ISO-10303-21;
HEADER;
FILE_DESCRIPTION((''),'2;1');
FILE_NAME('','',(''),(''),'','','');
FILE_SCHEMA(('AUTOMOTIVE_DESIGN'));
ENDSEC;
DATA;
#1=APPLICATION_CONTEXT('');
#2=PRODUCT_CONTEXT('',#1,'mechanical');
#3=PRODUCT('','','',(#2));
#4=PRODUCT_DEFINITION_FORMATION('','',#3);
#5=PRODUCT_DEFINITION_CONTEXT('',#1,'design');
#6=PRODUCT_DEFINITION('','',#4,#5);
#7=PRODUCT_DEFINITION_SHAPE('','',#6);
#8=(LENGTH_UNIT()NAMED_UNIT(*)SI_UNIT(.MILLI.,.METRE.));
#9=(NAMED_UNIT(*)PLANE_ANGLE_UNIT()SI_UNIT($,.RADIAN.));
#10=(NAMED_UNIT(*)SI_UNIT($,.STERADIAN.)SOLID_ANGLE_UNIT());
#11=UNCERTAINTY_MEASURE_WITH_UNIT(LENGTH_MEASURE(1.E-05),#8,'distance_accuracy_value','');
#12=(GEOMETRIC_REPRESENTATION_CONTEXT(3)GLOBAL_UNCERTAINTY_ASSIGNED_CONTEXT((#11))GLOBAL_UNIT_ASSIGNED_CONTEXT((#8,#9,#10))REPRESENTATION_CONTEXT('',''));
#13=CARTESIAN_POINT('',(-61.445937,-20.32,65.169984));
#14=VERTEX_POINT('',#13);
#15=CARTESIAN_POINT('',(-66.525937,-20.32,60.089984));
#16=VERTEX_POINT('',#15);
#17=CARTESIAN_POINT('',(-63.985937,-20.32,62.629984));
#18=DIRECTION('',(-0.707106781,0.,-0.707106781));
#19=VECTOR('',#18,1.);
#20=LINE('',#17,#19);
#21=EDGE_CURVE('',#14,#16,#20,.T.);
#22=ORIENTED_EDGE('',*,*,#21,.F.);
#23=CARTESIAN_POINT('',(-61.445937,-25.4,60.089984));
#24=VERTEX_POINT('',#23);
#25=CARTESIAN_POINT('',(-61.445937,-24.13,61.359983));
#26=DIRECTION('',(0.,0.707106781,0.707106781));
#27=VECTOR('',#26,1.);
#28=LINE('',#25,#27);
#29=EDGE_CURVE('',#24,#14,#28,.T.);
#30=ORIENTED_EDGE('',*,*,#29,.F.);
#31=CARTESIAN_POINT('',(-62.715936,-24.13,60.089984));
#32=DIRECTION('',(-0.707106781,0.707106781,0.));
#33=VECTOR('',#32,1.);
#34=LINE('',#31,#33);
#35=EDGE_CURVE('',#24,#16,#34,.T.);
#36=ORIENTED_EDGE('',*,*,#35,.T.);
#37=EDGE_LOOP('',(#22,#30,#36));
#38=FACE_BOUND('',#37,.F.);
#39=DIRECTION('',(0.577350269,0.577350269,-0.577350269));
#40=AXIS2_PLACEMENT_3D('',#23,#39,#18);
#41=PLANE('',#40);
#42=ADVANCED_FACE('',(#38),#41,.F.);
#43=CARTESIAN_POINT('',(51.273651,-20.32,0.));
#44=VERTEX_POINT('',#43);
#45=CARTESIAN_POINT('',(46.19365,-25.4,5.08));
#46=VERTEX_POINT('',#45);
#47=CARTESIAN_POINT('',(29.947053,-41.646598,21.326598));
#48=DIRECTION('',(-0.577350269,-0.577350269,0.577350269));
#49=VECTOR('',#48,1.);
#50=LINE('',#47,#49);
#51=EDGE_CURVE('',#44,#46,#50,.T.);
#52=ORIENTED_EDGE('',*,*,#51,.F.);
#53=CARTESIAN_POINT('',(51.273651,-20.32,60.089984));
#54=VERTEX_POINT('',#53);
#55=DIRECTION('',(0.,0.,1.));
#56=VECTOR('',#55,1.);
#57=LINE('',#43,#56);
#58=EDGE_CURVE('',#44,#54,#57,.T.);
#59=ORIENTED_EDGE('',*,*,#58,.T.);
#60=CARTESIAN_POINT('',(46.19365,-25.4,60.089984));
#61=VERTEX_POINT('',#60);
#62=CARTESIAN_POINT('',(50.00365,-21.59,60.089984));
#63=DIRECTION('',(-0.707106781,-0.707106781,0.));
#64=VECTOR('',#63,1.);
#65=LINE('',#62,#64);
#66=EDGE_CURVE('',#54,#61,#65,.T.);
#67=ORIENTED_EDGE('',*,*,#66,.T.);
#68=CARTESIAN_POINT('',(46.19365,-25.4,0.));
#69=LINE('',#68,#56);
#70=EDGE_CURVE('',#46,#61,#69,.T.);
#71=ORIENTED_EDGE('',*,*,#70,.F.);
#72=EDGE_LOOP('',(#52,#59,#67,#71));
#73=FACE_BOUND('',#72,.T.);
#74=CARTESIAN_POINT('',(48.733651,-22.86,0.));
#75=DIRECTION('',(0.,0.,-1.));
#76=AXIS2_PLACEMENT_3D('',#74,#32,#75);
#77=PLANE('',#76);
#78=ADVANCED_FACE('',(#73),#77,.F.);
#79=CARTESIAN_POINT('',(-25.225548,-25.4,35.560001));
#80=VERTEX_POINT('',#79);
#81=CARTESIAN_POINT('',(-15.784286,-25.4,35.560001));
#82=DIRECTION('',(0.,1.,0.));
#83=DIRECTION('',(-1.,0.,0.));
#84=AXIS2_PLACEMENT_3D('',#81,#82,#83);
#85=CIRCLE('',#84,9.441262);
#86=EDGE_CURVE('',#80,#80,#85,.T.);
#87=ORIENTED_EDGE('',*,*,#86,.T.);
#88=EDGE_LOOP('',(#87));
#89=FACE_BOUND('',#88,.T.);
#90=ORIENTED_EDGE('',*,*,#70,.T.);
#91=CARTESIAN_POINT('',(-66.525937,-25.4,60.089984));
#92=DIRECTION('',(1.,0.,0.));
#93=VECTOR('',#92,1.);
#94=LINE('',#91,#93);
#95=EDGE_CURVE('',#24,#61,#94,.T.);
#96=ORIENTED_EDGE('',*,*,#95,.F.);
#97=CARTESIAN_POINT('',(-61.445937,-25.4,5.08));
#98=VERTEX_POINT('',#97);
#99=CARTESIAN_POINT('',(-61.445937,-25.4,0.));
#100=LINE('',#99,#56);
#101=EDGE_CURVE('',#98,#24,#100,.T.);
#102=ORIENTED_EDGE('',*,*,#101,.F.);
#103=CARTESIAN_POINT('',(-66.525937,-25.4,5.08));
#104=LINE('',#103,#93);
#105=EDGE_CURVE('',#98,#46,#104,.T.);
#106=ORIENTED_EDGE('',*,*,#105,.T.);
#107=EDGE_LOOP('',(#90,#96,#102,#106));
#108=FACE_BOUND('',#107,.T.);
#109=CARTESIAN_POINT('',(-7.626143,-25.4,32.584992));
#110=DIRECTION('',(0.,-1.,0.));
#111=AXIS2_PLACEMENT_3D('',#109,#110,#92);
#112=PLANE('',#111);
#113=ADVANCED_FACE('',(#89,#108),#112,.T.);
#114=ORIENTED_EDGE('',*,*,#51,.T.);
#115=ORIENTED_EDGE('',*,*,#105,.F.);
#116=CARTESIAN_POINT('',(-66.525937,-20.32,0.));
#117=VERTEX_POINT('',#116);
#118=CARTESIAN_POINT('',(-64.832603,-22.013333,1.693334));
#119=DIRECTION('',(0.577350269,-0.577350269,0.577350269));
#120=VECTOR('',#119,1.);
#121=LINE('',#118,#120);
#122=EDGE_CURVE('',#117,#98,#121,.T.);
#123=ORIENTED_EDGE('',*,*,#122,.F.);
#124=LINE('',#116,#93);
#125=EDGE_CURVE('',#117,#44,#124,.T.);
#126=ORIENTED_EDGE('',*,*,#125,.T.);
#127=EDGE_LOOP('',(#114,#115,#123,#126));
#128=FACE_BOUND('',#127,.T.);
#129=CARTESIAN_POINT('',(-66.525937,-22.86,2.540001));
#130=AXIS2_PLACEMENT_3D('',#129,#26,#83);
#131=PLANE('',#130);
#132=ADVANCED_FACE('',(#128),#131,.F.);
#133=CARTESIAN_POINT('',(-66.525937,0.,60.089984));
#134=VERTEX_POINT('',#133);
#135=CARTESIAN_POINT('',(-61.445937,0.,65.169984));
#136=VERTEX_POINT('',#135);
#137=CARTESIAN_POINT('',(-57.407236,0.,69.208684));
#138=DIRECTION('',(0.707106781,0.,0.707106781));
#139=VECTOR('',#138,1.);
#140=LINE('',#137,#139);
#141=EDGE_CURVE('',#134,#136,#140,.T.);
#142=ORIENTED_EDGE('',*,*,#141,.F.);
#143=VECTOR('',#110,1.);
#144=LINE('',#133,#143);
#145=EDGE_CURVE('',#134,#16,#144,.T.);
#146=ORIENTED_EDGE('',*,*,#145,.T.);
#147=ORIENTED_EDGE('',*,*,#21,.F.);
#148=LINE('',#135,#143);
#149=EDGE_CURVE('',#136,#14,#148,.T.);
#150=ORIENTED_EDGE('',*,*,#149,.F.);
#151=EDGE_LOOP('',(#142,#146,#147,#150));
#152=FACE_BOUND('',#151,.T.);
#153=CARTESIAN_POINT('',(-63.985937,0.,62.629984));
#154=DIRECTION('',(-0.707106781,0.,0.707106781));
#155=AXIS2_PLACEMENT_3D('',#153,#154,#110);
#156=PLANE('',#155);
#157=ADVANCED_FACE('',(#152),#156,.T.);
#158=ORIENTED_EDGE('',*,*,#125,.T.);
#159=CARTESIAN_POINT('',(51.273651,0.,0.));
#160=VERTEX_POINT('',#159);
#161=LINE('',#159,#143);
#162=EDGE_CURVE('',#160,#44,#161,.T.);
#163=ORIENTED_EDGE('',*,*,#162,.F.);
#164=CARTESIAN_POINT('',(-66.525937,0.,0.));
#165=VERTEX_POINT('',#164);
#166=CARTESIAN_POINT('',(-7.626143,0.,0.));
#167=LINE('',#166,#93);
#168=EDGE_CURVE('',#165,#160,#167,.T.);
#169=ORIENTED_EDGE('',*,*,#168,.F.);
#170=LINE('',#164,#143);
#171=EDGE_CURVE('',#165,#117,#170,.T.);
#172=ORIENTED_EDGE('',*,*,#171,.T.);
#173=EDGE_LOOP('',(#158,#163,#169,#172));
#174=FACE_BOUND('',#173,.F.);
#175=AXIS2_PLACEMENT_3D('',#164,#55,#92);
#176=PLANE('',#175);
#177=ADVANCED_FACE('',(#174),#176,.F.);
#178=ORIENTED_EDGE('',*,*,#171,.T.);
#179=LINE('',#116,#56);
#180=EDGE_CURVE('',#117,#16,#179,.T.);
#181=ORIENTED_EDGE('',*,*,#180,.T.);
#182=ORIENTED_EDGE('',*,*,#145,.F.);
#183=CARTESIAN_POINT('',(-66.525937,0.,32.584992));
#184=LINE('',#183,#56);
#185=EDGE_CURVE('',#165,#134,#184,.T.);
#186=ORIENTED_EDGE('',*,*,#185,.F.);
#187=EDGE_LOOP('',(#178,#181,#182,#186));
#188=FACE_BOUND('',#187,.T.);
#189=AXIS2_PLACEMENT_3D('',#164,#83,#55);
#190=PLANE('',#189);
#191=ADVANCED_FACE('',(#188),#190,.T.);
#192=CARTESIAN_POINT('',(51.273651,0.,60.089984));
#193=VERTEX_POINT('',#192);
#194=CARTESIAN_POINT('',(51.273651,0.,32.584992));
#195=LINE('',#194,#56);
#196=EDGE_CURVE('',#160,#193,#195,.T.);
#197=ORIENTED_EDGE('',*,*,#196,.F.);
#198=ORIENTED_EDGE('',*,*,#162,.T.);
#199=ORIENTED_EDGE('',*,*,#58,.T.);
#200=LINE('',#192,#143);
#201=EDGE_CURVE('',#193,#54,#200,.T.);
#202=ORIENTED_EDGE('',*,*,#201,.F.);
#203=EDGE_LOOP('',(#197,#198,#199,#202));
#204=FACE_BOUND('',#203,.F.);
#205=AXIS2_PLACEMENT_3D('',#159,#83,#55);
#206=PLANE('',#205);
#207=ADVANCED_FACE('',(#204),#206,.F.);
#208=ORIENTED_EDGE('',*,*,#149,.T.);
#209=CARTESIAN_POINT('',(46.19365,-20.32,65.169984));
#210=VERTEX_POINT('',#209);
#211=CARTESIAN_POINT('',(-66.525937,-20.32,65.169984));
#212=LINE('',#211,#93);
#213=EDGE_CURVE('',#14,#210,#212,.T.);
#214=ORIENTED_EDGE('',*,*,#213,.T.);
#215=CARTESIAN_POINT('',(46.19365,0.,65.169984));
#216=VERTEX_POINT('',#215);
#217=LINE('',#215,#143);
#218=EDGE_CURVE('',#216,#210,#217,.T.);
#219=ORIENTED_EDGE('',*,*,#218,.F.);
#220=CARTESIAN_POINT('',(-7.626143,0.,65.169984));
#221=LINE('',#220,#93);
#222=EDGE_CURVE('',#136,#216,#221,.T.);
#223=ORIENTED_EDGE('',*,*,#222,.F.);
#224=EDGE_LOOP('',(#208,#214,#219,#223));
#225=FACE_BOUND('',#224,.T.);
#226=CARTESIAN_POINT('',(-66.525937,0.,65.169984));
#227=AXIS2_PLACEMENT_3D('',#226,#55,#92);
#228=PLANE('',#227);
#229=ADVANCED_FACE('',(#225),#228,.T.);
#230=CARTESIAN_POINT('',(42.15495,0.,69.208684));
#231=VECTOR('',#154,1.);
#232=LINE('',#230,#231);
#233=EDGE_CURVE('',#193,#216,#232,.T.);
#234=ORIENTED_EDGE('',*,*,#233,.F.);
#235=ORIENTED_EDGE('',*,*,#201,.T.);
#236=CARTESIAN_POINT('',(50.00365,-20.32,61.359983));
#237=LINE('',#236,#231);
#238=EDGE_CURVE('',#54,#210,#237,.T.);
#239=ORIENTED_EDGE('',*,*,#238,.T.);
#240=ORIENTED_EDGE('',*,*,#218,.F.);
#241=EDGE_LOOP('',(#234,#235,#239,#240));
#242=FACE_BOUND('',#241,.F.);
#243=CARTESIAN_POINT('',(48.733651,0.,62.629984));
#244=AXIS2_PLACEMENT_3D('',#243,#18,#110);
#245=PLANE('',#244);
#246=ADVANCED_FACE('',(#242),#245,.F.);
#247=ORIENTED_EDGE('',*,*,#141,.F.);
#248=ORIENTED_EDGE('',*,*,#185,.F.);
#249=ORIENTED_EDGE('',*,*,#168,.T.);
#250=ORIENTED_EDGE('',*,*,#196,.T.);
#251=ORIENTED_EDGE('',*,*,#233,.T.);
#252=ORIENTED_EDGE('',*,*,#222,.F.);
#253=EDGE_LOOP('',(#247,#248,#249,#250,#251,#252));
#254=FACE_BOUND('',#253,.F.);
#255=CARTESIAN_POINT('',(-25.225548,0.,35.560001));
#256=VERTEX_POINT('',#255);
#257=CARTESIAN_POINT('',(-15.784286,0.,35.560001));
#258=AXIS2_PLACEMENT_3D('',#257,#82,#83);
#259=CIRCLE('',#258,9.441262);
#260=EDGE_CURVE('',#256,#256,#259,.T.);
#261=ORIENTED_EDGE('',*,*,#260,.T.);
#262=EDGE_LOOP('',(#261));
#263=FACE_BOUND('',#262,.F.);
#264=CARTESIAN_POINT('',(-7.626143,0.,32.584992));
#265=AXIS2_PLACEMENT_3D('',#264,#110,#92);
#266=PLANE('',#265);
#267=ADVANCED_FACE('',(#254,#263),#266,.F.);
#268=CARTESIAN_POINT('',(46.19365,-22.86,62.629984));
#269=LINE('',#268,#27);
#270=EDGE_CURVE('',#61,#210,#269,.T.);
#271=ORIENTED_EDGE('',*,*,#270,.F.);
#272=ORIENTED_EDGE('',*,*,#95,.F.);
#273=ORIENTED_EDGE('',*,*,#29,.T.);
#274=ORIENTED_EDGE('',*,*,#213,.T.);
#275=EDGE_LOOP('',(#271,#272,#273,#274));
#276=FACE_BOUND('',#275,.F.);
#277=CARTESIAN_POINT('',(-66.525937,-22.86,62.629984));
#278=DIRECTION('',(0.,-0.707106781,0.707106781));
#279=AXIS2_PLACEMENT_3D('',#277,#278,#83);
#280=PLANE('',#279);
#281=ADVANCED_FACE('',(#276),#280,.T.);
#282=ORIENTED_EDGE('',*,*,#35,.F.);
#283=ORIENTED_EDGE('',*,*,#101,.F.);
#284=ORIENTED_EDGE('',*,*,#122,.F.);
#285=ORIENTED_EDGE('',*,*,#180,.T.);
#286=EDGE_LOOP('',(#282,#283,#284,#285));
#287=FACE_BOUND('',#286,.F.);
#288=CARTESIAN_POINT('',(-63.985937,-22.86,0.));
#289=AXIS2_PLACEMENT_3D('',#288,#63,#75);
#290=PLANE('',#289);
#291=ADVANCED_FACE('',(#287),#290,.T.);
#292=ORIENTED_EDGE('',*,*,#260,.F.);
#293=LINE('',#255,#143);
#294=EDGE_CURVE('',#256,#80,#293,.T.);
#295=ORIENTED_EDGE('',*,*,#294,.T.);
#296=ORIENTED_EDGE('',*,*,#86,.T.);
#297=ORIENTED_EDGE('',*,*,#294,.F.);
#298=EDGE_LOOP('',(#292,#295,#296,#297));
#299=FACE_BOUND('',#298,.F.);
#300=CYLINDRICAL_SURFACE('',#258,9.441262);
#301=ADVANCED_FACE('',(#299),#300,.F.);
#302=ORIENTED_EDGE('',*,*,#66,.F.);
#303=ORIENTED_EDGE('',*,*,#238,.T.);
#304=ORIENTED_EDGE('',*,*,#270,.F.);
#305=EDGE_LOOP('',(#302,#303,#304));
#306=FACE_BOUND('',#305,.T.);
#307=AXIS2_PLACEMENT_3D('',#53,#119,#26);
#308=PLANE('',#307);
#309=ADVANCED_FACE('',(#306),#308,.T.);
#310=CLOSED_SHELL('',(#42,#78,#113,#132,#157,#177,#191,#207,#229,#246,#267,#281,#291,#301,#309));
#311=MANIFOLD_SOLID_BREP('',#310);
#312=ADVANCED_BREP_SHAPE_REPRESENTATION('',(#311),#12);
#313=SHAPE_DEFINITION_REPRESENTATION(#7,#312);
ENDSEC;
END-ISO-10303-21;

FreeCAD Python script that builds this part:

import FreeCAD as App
import Part
import Sketcher
from FreeCAD import Vector
Q = App.Units.Quantity


def edges_at(feature, points):
    """Names of the edges that pass closest to the given points."""
    edges = feature.Shape.Edges
    near = lambda p: min(range(len(edges)), key=lambda i: edges[i].distToShape(Part.Vertex(*p))[0])
    return sorted({f"Edge{near(p) + 1}" for p in points})

doc = App.newDocument("Part")
body = doc.addObject("PartDesign::Body", "Body")

sketch1 = body.newObject("Sketcher::SketchObject", "Sketch")
sketch1.AttachmentSupport = (doc.getObject("XZ_Plane"), [""])
sketch1.MapMode = "FlatFace"
sketch1.addGeometry(Part.LineSegment(Vector(-67, 65, 0), Vector(-67, 0, 0)), False)
sketch1.addGeometry(Part.LineSegment(Vector(-67, 0, 0), Vector(51, 0, 0)), False)
sketch1.addGeometry(Part.LineSegment(Vector(51, 0, 0), Vector(51, 65, 0)), False)
sketch1.addGeometry(Part.LineSegment(Vector(51, 65, 0), Vector(-67, 65, 0)), False)
sketch1.addConstraint(Sketcher.Constraint("Coincident", 0, 2, 1, 1))
sketch1.addConstraint(Sketcher.Constraint("Coincident", 1, 2, 2, 1))
sketch1.addConstraint(Sketcher.Constraint("Coincident", 2, 2, 3, 1))
sketch1.addConstraint(Sketcher.Constraint("Coincident", 3, 2, 0, 1))
sketch1.addConstraint(Sketcher.Constraint("Vertical", 0))
sketch1.addConstraint(Sketcher.Constraint("Horizontal", 1))
sketch1.addConstraint(Sketcher.Constraint("Vertical", 2))
sketch1.addConstraint(Sketcher.Constraint("Horizontal", 3))
sketch1.addConstraint(Sketcher.Constraint("PointOnObject", 0, 2, -1))
sketch1.addConstraint(Sketcher.Constraint("DistanceX", 1, 1, 1, 2, 117.799587))
sketch1.addConstraint(Sketcher.Constraint("DistanceY", 0, 2, 0, 1, 65.169983))
sketch1.addConstraint(Sketcher.Constraint("DistanceX", -1, 1, 1, 2, 51.273651))
pad1 = body.newObject("PartDesign::Pad", "Pad")
pad1.Profile = sketch1
pad1.Length = Q("1 in")
doc.recompute()

chamfer = body.newObject("PartDesign::Chamfer", "Chamfer")
chamfer.Base = (pad1, edges_at(pad1, [
    (-66.526, -12.7, 65.17),
    (-7.626, -25.4, 65.17),
    (-66.526, -25.4, 32.585),
    (-7.626, -25.4, 0),
    (51.274, -25.4, 32.585),
    (51.274, -12.7, 65.17),
]))
chamfer.Size = Q("0.2 in")

sketch2 = body.newObject("Sketcher::SketchObject", "Sketch001")
sketch2.AttachmentSupport = (doc.getObject("XZ_Plane"), [""])
sketch2.MapMode = "FlatFace"
sketch2.addGeometry(Part.Circle(Vector(-16, 36, 0), Vector(0, 0, 1), 9), False)
sketch2.addConstraint(Sketcher.Constraint("DistanceY", -1, 1, 0, 3, Q("1.4 in")))
sketch2.addConstraint(Sketcher.Constraint("Diameter", 0, 18.882524))
sketch2.addConstraint(Sketcher.Constraint("DistanceX", 0, 3, -1, 1, 15.784286))
pocket1 = body.newObject("PartDesign::Pocket", "Pocket")
pocket1.Profile = sketch2
pocket1.Type = "ThroughAll"
pocket1.Reversed = True

doc.recompute()
